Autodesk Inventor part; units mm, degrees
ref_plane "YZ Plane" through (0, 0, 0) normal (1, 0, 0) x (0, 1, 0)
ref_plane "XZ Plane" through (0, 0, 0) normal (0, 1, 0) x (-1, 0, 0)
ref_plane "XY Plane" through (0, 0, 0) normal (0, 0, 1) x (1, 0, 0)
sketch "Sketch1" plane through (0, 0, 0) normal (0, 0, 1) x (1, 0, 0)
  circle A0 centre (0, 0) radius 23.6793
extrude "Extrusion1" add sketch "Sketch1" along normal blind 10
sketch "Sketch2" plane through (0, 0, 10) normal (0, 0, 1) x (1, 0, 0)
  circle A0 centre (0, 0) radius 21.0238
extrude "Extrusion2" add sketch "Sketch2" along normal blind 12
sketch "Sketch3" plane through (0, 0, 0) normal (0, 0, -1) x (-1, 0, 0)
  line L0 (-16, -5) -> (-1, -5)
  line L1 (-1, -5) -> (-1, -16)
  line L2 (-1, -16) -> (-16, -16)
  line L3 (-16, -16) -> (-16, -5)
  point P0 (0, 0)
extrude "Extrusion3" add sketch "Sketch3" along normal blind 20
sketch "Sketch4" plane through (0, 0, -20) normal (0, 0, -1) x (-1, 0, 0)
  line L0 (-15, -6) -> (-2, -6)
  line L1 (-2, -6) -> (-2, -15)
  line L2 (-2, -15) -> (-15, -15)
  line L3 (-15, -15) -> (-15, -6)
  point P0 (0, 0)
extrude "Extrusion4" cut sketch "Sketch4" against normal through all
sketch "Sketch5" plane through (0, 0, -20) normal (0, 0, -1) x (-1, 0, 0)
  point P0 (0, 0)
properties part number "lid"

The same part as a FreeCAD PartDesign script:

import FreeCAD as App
import Part
import Sketcher
Q = App.Units.Quantity

doc = App.newDocument("Part")
body = doc.addObject("PartDesign::Body", "Body")

# Sketch on XY plane
sketch1 = doc.addObject("Sketcher::SketchObject", "Sketch")
body.addObject(sketch1)
sketch1.AttachmentSupport = (doc.XY_Plane, [""])
sketch1.MapMode = "FlatFace"
sketch1.addGeometry(Part.Circle(App.Vector(0, 0, 0), App.Vector(0, 0, 1), 24), False)
sketch1.addConstraint(Sketcher.Constraint("Coincident", 0, 3, -1, 1))
sketch1.addConstraint(Sketcher.Constraint("Diameter", 0, Q("47.3586 mm")))
pad1 = doc.addObject("PartDesign::Pad", "Pad")
body.addObject(pad1)
pad1.Profile = sketch1
pad1.Length = 10

# Sketch on XY plane
sketch2 = doc.addObject("Sketcher::SketchObject", "Sketch001")
body.addObject(sketch2)
sketch2.AttachmentSupport = (doc.XY_Plane, [""])
sketch2.MapMode = "FlatFace"
sketch2.AttachmentOffset = App.Placement(App.Vector(0, 0, 10), App.Rotation())
sketch2.addGeometry(Part.Circle(App.Vector(0, 0, 0), App.Vector(0, 0, 1), 21), False)
sketch2.addConstraint(Sketcher.Constraint("Coincident", 0, 3, -1, 1))
sketch2.addConstraint(Sketcher.Constraint("Diameter", 0, Q("42.0476 mm")))
pad2 = doc.addObject("PartDesign::Pad", "Pad001")
body.addObject(pad2)
pad2.Profile = sketch2
pad2.Length = 12

# Sketch on XY plane
sketch3 = doc.addObject("Sketcher::SketchObject", "Sketch002")
body.addObject(sketch3)
sketch3.AttachmentSupport = (doc.XY_Plane, [""])
sketch3.MapMode = "FlatFace"
sketch3.addGeometry(Part.LineSegment(App.Vector(1, -5, 0), App.Vector(16, -5, 0)), False)
sketch3.addGeometry(Part.LineSegment(App.Vector(16, -5, 0), App.Vector(16, -16, 0)), False)
sketch3.addGeometry(Part.LineSegment(App.Vector(16, -16, 0), App.Vector(1, -16, 0)), False)
sketch3.addGeometry(Part.LineSegment(App.Vector(1, -16, 0), App.Vector(1, -5, 0)), False)
sketch3.addConstraint(Sketcher.Constraint("Coincident", 0, 2, 1, 1))
sketch3.addConstraint(Sketcher.Constraint("Coincident", 1, 2, 2, 1))
sketch3.addConstraint(Sketcher.Constraint("Coincident", 2, 2, 3, 1))
sketch3.addConstraint(Sketcher.Constraint("Coincident", 3, 2, 0, 1))
sketch3.addConstraint(Sketcher.Constraint("Horizontal", 0))
sketch3.addConstraint(Sketcher.Constraint("Vertical", 1))
sketch3.addConstraint(Sketcher.Constraint("Horizontal", 2))
sketch3.addConstraint(Sketcher.Constraint("Vertical", 3))
sketch3.addConstraint(Sketcher.Constraint("DistanceX", 0, 1, 0, 2, Q("15 mm")))
sketch3.addConstraint(Sketcher.Constraint("DistanceY", 1, 2, 1, 1, Q("11 mm")))
sketch3.addConstraint(Sketcher.Constraint("DistanceX", -1, 1, 0, 2, Q("16 mm")))
sketch3.addConstraint(Sketcher.Constraint("DistanceY", 0, 2, -1, 1, Q("5 mm")))
pad3 = doc.addObject("PartDesign::Pad", "Pad002")
body.addObject(pad3)
pad3.Profile = sketch3
pad3.Length = 20
pad3.Reversed = True

# Sketch on XY plane
sketch4 = doc.addObject("Sketcher::SketchObject", "Sketch003")
body.addObject(sketch4)
sketch4.AttachmentSupport = (doc.XY_Plane, [""])
sketch4.MapMode = "FlatFace"
sketch4.AttachmentOffset = App.Placement(App.Vector(0, 0, -20), App.Rotation())
sketch4.addGeometry(Part.LineSegment(App.Vector(2, -6, 0), App.Vector(15, -6, 0)), False)
sketch4.addGeometry(Part.LineSegment(App.Vector(15, -6, 0), App.Vector(15, -15, 0)), False)
sketch4.addGeometry(Part.LineSegment(App.Vector(15, -15, 0), App.Vector(2, -15, 0)), False)
sketch4.addGeometry(Part.LineSegment(App.Vector(2, -15, 0), App.Vector(2, -6, 0)), False)
sketch4.addConstraint(Sketcher.Constraint("Coincident", 0, 2, 1, 1))
sketch4.addConstraint(Sketcher.Constraint("Coincident", 1, 2, 2, 1))
sketch4.addConstraint(Sketcher.Constraint("Coincident", 2, 2, 3, 1))
sketch4.addConstraint(Sketcher.Constraint("Coincident", 3, 2, 0, 1))
sketch4.addConstraint(Sketcher.Constraint("Horizontal", 0))
sketch4.addConstraint(Sketcher.Constraint("Vertical", 1))
sketch4.addConstraint(Sketcher.Constraint("Horizontal", 2))
sketch4.addConstraint(Sketcher.Constraint("Vertical", 3))
sketch4.addConstraint(Sketcher.Constraint("DistanceX", 0, 1, 0, 2, Q("13 mm")))
sketch4.addConstraint(Sketcher.Constraint("DistanceY", 1, 2, 1, 1, Q("9 mm")))
sketch4.addConstraint(Sketcher.Constraint("DistanceX", -1, 1, 0, 2, Q("15 mm")))
sketch4.addConstraint(Sketcher.Constraint("DistanceY", 0, 2, -1, 1, Q("6 mm")))
pocket1 = doc.addObject("PartDesign::Pocket", "Pocket")
body.addObject(pocket1)
pocket1.Profile = sketch4
pocket1.Type = "ThroughAll"
pocket1.Reversed = True

doc.recompute()
